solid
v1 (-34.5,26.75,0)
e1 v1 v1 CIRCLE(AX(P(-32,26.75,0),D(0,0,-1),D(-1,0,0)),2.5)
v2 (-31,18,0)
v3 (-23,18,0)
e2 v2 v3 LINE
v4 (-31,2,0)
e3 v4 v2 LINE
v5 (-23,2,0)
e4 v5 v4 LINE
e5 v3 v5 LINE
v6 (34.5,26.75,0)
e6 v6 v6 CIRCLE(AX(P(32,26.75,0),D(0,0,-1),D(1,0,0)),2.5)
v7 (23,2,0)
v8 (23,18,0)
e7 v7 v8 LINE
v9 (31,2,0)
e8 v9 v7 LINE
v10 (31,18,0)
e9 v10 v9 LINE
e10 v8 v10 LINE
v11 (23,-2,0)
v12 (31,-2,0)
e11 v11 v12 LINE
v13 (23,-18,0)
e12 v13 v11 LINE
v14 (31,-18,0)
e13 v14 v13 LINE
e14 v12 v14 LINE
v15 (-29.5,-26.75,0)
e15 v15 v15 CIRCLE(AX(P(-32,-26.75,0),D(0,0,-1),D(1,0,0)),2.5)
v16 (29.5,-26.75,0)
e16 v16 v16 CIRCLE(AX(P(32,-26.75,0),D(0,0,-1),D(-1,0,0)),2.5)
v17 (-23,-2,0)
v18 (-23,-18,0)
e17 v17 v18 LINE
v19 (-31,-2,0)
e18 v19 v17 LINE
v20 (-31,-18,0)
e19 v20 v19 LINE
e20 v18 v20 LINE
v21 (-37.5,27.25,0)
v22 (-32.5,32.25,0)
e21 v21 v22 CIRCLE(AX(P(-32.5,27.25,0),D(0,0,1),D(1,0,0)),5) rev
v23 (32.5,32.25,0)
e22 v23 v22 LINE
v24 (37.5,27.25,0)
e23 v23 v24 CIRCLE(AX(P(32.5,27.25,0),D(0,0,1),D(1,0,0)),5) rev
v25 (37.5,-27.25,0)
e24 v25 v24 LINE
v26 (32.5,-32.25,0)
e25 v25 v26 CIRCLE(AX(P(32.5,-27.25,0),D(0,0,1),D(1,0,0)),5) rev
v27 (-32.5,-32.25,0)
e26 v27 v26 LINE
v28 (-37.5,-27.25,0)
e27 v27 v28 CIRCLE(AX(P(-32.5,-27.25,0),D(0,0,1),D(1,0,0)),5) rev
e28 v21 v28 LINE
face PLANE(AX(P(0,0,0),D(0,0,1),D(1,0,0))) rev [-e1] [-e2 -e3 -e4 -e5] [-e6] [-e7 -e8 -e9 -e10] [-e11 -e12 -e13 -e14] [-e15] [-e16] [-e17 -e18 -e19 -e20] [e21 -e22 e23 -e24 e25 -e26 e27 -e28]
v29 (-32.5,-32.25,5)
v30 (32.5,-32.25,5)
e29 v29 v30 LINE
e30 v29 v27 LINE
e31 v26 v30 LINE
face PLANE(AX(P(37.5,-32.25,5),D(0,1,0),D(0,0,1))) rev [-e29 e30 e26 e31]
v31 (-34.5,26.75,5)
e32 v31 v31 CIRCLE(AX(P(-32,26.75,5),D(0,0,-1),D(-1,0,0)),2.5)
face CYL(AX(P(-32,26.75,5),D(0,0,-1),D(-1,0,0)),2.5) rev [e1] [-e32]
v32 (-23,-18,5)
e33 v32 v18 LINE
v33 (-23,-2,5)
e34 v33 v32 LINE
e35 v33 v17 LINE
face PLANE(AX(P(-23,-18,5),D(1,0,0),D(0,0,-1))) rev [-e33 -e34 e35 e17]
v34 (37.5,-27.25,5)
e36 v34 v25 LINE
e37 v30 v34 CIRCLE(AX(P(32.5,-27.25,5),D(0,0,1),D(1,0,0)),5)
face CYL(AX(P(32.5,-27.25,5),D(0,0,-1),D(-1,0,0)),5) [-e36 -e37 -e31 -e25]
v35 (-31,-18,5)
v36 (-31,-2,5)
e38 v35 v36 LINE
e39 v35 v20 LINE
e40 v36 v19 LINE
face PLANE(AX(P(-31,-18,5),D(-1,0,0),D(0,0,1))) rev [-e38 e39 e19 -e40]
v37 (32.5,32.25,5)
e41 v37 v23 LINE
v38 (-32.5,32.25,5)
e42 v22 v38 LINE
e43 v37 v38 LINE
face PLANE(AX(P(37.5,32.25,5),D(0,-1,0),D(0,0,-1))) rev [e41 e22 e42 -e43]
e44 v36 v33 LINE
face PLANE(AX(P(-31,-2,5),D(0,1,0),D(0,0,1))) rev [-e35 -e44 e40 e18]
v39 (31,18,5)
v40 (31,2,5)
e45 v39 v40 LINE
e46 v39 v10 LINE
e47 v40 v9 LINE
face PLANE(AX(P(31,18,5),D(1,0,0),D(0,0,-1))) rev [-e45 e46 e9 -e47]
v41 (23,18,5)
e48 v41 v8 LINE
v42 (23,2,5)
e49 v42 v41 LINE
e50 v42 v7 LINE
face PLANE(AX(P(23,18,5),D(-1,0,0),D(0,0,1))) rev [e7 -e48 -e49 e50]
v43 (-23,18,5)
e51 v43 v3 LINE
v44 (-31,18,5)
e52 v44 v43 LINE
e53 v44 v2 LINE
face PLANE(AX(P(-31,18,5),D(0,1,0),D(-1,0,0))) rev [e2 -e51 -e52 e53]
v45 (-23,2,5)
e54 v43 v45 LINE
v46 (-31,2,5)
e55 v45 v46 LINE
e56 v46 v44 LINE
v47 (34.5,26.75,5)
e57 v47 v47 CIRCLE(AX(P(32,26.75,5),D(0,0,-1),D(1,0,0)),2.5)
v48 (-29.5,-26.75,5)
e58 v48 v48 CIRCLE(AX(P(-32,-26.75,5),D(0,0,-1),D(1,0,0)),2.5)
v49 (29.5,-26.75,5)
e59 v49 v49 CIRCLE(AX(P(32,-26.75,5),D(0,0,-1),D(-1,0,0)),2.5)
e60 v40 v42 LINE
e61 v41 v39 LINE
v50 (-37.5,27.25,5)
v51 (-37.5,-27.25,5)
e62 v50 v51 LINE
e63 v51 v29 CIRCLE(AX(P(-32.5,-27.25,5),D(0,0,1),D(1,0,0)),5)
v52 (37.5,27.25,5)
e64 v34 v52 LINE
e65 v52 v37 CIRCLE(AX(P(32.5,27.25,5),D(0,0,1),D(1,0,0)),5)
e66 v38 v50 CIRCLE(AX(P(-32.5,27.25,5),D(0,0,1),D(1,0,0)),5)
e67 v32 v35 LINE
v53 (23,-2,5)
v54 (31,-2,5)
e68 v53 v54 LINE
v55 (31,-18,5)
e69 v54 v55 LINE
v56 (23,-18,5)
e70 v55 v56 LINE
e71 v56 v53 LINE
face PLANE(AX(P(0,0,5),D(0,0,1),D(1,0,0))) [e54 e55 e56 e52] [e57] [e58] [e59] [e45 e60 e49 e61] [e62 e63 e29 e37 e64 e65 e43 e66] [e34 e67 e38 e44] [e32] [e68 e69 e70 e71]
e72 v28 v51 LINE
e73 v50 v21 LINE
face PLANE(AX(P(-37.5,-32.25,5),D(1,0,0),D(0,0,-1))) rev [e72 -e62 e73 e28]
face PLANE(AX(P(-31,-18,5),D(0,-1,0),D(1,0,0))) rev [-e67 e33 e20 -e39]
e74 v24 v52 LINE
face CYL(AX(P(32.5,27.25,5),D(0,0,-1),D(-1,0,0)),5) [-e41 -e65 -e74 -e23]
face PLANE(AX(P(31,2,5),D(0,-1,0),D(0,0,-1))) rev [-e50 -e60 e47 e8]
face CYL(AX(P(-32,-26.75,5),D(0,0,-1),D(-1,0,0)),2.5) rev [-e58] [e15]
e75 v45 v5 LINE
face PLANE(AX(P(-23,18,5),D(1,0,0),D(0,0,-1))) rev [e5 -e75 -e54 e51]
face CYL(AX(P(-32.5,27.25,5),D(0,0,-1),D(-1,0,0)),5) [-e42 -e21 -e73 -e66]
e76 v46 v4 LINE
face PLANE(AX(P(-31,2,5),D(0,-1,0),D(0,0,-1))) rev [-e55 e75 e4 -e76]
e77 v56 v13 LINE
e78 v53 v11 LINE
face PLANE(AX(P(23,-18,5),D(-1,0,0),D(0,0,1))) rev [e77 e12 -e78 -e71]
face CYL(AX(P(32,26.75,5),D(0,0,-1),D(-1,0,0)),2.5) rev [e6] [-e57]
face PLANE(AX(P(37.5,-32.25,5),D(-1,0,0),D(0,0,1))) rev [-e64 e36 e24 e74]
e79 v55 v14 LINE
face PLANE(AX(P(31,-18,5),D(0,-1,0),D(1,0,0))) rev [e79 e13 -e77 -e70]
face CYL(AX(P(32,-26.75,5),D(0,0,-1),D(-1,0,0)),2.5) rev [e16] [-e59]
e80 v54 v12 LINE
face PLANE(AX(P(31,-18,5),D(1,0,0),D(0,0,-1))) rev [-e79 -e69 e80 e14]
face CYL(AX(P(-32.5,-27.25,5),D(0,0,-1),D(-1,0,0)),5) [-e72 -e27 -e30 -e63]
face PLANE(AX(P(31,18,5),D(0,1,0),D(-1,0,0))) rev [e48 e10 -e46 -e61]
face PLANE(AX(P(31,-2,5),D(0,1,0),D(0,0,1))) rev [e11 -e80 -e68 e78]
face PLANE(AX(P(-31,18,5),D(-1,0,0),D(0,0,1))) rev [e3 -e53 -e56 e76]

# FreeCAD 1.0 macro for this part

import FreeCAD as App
import Part
import Sketcher
Q = App.Units.Quantity


def edges_at(feature, points):
    """Names of the edges that pass closest to the given points."""
    edges = feature.Shape.Edges
    near = lambda p: min(range(len(edges)), key=lambda i: edges[i].distToShape(Part.Vertex(*p))[0])
    return sorted({f"Edge{near(p) + 1}" for p in points})

doc = App.newDocument("Part")
body = doc.addObject("PartDesign::Body", "Body")

# Sketch on XY plane
sketch1 = body.newObject("Sketcher::SketchObject", "Sketch")
sketch1.AttachmentSupport = (doc.getObject("XY_Plane"), [""])
sketch1.MapMode = "FlatFace"
sketch1.addGeometry([
    Part.LineSegment(App.Vector(-38, 32, 0), App.Vector(-38, -32, 0)),
    Part.LineSegment(App.Vector(-38, -32, 0), App.Vector(38, -32, 0)),
    Part.LineSegment(App.Vector(38, -32, 0), App.Vector(38, 32, 0)),
    Part.LineSegment(App.Vector(38, 32, 0), App.Vector(-38, 32, 0)),
], False)
sketch1.addConstraint([
    Sketcher.Constraint("Coincident", 0, 2, 1, 1),
    Sketcher.Constraint("Coincident", 1, 2, 2, 1),
    Sketcher.Constraint("Coincident", 2, 2, 3, 1),
    Sketcher.Constraint("Coincident", 3, 2, 0, 1),
    Sketcher.Constraint("Vertical", 0),
    Sketcher.Constraint("Horizontal", 1),
    Sketcher.Constraint("Vertical", 2),
    Sketcher.Constraint("Horizontal", 3),
    Sketcher.Constraint("Symmetric", 0, 2, 2, 2, -1, 1),
    Sketcher.Constraint("DistanceX", 1, 1, 1, 2, Q("75 mm")),
    Sketcher.Constraint("DistanceY", 0, 2, 0, 1, Q("64.5 mm")),
])
pad1 = body.newObject("PartDesign::Pad", "Pad")
pad1.Profile = sketch1
pad1.Length = 5

# Sketch on YZ plane
sketch2 = body.newObject("Sketcher::SketchObject", "Sketch001")
sketch2.AttachmentSupport = (doc.getObject("YZ_Plane"), [""])
sketch2.MapMode = "FlatFace"
sketch2.addGeometry([
    Part.LineSegment(App.Vector(30, 0, 0), App.Vector(-30, 0, 0)),
    Part.LineSegment(App.Vector(-30, 0, 0), App.Vector(-21, -33, 0)),
    Part.LineSegment(App.Vector(-21, -33, 0), App.Vector(21, -33, 0)),
    Part.LineSegment(App.Vector(21, -33, 0), App.Vector(30, 0, 0)),
], False)
sketch2.addConstraint([
    Sketcher.Constraint("Coincident", 0, 2, 1, 1),
    Sketcher.Constraint("Coincident", 1, 2, 2, 1),
    Sketcher.Constraint("Coincident", 2, 2, 3, 1),
    Sketcher.Constraint("Coincident", 3, 2, 0, 1),
    Sketcher.Constraint("Horizontal", 0),
    Sketcher.Constraint("Horizontal", 2),
    Sketcher.Constraint("Symmetric", 0, 2, 3, 2, -1, 1),
    Sketcher.Constraint("Equal", 1, 3),
    Sketcher.Constraint("DistanceX", 2, 1, 2, 2, Q("42 mm")),
    Sketcher.Constraint("Angle", 1, Q("-75 deg")),
    Sketcher.Constraint("Distance", 1, Q("34.271908 mm")),
])
pad2 = body.newObject("PartDesign::Pad", "Pad001")
pad2.Profile = sketch2
pad2.Type = "TwoLengths"
pad2.Length = 2
pad2.Length2 = 2

# Sketch on XY plane
sketch3 = body.newObject("Sketcher::SketchObject", "Sketch002")
sketch3.AttachmentSupport = (doc.getObject("XY_Plane"), [""])
sketch3.MapMode = "FlatFace"
sketch3.addGeometry([
    Part.Circle(App.Vector(-32, 26.8, 0), App.Vector(0, 0, 1), 2.5),
    Part.Circle(App.Vector(-32, -26.8, 0), App.Vector(0, 0, 1), 2.5),
    Part.Circle(App.Vector(32, -26.8, 0), App.Vector(0, 0, 1), 2.5),
    Part.Circle(App.Vector(32, 26.8, 0), App.Vector(0, 0, 1), 2.5),
], False)
sketch3.addConstraint([
    Sketcher.Constraint("Equal", 0, 1),
    Sketcher.Constraint("Equal", 1, 2),
    Sketcher.Constraint("Equal", 2, 3),
    Sketcher.Constraint("Symmetric", 0, 3, 2, 3, -1, 1),
    Sketcher.Constraint("Symmetric", 1, 3, 3, 3, -1, 1),
    Sketcher.Constraint("Symmetric", 1, 3, 2, 3, -2),
    Sketcher.Constraint("Diameter", 0, Q("5 mm")),
    Sketcher.Constraint("DistanceX", 0, 3, -1, 1, Q("32 mm")),
    Sketcher.Constraint("DistanceY", 1, 3, 0, 3, Q("53.5 mm")),
])
pocket1 = body.newObject("PartDesign::Pocket", "Pocket")
pocket1.Profile = sketch3
pocket1.Type = "ThroughAll"
pocket1.Reversed = True

# Sketch on XY plane
sketch4 = body.newObject("Sketcher::SketchObject", "Sketch003")
sketch4.AttachmentSupport = (doc.getObject("XY_Plane"), [""])
sketch4.MapMode = "FlatFace"
sketch4.addGeometry([
    Part.LineSegment(App.Vector(31, 18, 0), App.Vector(31, 2, 0)),  # 0
    Part.LineSegment(App.Vector(31, 2, 0), App.Vector(23, 2, 0)),  # 1
    Part.LineSegment(App.Vector(23, 2, 0), App.Vector(23, 18, 0)),  # 2
    Part.LineSegment(App.Vector(23, 18, 0), App.Vector(31, 18, 0)),  # 3
    Part.LineSegment(App.Vector(-23, 18, 0), App.Vector(-23, 2, 0)),  # 4
    Part.LineSegment(App.Vector(-23, 2, 0), App.Vector(-31, 2, 0)),  # 5
    Part.LineSegment(App.Vector(-31, 2, 0), App.Vector(-31, 18, 0)),  # 6
    Part.LineSegment(App.Vector(-31, 18, 0), App.Vector(-23, 18, 0)),  # 7
    Part.LineSegment(App.Vector(-23, -2, 0), App.Vector(-23, -18, 0)),  # 8
    Part.LineSegment(App.Vector(-23, -18, 0), App.Vector(-31, -18, 0)),  # 9
    Part.LineSegment(App.Vector(-31, -18, 0), App.Vector(-31, -2, 0)),  # 10
    Part.LineSegment(App.Vector(-31, -2, 0), App.Vector(-23, -2, 0)),  # 11
    Part.LineSegment(App.Vector(31, -2, 0), App.Vector(31, -18, 0)),  # 12
    Part.LineSegment(App.Vector(31, -18, 0), App.Vector(23, -18, 0)),  # 13
    Part.LineSegment(App.Vector(23, -18, 0), App.Vector(23, -2, 0)),  # 14
    Part.LineSegment(App.Vector(23, -2, 0), App.Vector(31, -2, 0)),  # 15
], False)
sketch4.addConstraint([
    Sketcher.Constraint("Coincident", 0, 2, 1, 1),
    Sketcher.Constraint("Coincident", 1, 2, 2, 1),
    Sketcher.Constraint("Coincident", 2, 2, 3, 1),
    Sketcher.Constraint("Coincident", 3, 2, 0, 1),
    Sketcher.Constraint("Coincident", 4, 2, 5, 1),
    Sketcher.Constraint("Coincident", 5, 2, 6, 1),
    Sketcher.Constraint("Coincident", 6, 2, 7, 1),
    Sketcher.Constraint("Coincident", 7, 2, 4, 1),
    Sketcher.Constraint("Coincident", 8, 2, 9, 1),
    Sketcher.Constraint("Coincident", 9, 2, 10, 1),
    Sketcher.Constraint("Coincident", 10, 2, 11, 1),
    Sketcher.Constraint("Coincident", 11, 2, 8, 1),
    Sketcher.Constraint("Coincident", 12, 2, 13, 1),
    Sketcher.Constraint("Coincident", 13, 2, 14, 1),
    Sketcher.Constraint("Coincident", 14, 2, 15, 1),
    Sketcher.Constraint("Coincident", 15, 2, 12, 1),
    Sketcher.Constraint("Vertical", 0),
    Sketcher.Constraint("Horizontal", 1),
    Sketcher.Constraint("Vertical", 2),
    Sketcher.Constraint("Horizontal", 3),
    Sketcher.Constraint("Vertical", 4),
    Sketcher.Constraint("Horizontal", 5),
    Sketcher.Constraint("Vertical", 6),
    Sketcher.Constraint("Horizontal", 7),
    Sketcher.Constraint("Vertical", 8),
    Sketcher.Constraint("Horizontal", 9),
    Sketcher.Constraint("Vertical", 10),
    Sketcher.Constraint("Horizontal", 11),
    Sketcher.Constraint("Vertical", 12),
    Sketcher.Constraint("Horizontal", 13),
    Sketcher.Constraint("Vertical", 14),
    Sketcher.Constraint("Horizontal", 15),
    Sketcher.Constraint("Symmetric", 2, 2, 8, 2, -1, 1),
    Sketcher.Constraint("Symmetric", 0, 2, 10, 2, -1, 1),
    Sketcher.Constraint("Symmetric", 6, 2, 12, 2, -1, 1),
    Sketcher.Constraint("Symmetric", 4, 2, 14, 2, -1, 1),
    Sketcher.Constraint("Symmetric", 1, 2, 4, 2, -2),
    Sketcher.Constraint("Symmetric", 3, 2, 6, 2, -2),
    Sketcher.Constraint("DistanceX", 1, 2, 1, 1, Q("8 mm")),
    Sketcher.Constraint("DistanceY", 0, 2, 0, 1, Q("16 mm")),
    Sketcher.Constraint("DistanceX", -1, 1, 0, 2, Q("31 mm")),
    Sketcher.Constraint("DistanceY", -1, 1, 0, 2, Q("2 mm")),
])
pocket2 = body.newObject("PartDesign::Pocket", "Pocket001")
pocket2.Profile = sketch4
pocket2.Type = "ThroughAll"
pocket2.Reversed = True
doc.recompute()

fillet = body.newObject("PartDesign::Fillet", "Fillet")
fillet.Base = (pocket2, edges_at(pocket2, [
    (0, -21, -33.104),
    (0, 21, -33.104),
    (-37.5, 32.25, 2.5),
    (37.5, 32.25, 2.5),
    (37.5, -32.25, 2.5),
    (-37.5, -32.25, 2.5),
]))
fillet.Radius = 5

# Sketch on YZ plane
sketch5 = body.newObject("Sketcher::SketchObject", "Sketch004")
sketch5.AttachmentSupport = (doc.getObject("YZ_Plane"), [""])
sketch5.MapMode = "FlatFace"
sketch5.AttachmentOffset = App.Placement(App.Vector(0, 0, 2), App.Rotation())
sketch5.addGeometry([
    Part.LineSegment(App.Vector(30, 0, 0), App.Vector(-31, 0, 0)),
    Part.LineSegment(App.Vector(-31, 0, 0), App.Vector(-31, -34, 0)),
    Part.LineSegment(App.Vector(-31, -34, 0), App.Vector(30, -34, 0)),
    Part.LineSegment(App.Vector(30, -34, 0), App.Vector(30, 0, 0)),
], False)
sketch5.addConstraint([
    Sketcher.Constraint("Coincident", 0, 2, 1, 1),
    Sketcher.Constraint("Coincident", 1, 2, 2, 1),
    Sketcher.Constraint("Coincident", 2, 2, 3, 1),
    Sketcher.Constraint("Coincident", 3, 2, 0, 1),
    Sketcher.Constraint("Horizontal", 0),
    Sketcher.Constraint("Vertical", 1),
    Sketcher.Constraint("Horizontal", 2),
    Sketcher.Constraint("Vertical", 3),
    Sketcher.Constraint("PointOnObject", 0, 2, -1),
    Sketcher.Constraint("DistanceY", 1, 2, 1, 1, Q("33.787771 mm")),
    Sketcher.Constraint("DistanceX", 0, 2, 0, 1, Q("60.601543 mm")),
    Sketcher.Constraint("DistanceX", 0, 2, -1, 1, Q("30.73132 mm")),
])
pocket3 = body.newObject("PartDesign::Pocket", "Pocket002")
pocket3.Profile = sketch5
pocket3.Length = 10

doc.recompute()
